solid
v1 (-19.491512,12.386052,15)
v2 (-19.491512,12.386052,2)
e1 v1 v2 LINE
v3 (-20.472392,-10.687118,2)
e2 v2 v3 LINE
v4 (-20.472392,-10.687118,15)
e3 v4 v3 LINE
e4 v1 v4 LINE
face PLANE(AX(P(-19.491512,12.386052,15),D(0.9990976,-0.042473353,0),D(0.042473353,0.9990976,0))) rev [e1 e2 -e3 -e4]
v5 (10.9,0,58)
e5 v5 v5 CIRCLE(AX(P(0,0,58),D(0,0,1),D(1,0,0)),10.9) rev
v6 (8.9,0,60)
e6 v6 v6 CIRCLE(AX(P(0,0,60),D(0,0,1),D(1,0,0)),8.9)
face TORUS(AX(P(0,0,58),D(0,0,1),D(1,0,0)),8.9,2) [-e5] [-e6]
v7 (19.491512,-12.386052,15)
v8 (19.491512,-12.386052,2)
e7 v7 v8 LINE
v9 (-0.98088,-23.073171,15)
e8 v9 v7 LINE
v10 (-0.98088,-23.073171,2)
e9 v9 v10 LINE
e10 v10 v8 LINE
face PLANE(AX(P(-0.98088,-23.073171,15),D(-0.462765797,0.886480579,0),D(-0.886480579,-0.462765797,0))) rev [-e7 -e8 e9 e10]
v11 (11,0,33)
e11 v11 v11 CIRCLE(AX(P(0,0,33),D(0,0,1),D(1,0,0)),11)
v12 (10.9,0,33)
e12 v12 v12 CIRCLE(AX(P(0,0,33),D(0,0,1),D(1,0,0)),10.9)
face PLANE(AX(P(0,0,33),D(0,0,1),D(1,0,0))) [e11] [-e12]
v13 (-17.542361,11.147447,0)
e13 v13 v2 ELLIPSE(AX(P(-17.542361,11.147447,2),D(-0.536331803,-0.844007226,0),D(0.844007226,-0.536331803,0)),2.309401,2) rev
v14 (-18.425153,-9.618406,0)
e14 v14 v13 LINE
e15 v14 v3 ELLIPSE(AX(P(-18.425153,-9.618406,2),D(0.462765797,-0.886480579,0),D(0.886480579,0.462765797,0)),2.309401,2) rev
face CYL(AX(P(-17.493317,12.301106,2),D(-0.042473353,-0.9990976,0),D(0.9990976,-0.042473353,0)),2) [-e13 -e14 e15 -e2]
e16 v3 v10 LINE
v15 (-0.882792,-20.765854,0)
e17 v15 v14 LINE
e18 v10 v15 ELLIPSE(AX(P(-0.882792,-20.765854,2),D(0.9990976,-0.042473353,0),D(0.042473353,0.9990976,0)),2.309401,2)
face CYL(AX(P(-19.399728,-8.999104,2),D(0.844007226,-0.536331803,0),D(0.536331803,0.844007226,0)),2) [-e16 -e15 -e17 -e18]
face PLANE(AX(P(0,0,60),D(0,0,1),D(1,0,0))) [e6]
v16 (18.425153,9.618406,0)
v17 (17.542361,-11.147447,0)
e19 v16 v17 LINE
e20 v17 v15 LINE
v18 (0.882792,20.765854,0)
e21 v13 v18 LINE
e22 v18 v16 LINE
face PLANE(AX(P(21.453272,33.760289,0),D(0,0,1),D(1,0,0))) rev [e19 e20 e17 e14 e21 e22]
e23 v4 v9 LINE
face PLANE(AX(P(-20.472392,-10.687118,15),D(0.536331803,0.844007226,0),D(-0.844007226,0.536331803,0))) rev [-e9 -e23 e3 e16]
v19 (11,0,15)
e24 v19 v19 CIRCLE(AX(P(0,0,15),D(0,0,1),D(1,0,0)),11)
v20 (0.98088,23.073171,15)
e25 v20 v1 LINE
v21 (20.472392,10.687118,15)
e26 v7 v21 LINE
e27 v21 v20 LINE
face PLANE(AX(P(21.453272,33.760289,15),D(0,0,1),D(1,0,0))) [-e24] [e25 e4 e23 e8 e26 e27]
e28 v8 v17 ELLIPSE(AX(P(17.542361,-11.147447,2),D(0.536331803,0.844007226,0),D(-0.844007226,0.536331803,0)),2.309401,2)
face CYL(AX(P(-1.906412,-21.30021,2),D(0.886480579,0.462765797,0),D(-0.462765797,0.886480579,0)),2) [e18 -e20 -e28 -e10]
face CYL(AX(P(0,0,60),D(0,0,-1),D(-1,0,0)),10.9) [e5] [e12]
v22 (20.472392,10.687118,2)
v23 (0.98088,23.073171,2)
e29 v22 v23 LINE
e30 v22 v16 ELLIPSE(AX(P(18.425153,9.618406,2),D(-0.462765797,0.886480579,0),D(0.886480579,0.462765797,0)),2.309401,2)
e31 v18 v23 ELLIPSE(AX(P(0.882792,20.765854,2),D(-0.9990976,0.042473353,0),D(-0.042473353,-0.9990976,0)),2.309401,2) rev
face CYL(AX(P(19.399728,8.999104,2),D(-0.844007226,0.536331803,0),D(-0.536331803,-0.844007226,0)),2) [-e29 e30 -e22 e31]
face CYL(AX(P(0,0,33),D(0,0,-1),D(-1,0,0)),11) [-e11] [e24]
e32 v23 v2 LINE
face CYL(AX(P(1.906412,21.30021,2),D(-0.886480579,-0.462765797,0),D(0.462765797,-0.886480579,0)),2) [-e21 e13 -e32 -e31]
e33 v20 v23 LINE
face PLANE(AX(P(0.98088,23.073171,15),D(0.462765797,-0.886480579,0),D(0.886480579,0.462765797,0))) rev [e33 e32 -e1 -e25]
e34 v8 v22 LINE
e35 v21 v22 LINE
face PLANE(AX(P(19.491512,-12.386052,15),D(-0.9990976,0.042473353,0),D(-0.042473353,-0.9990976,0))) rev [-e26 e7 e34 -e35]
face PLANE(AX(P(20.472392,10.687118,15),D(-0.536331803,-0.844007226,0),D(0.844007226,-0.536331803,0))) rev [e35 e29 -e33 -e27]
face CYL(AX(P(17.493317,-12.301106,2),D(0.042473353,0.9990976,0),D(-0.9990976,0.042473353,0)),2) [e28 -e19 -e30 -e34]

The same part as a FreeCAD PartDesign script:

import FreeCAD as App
import Part
import Sketcher

V = App.Vector
Q = App.Units.Quantity


def edges_at(feature, points):
    """Names of the edges that pass closest to the given points."""
    edges = feature.Shape.Edges
    near = lambda p: min(range(len(edges)), key=lambda i: edges[i].distToShape(Part.Vertex(*p))[0])
    return sorted({f"Edge{near(p) + 1}" for p in points})


def add_polygon(sketch, points):
    """Adds a closed chain of lines whose ends are joined by coincident constraints."""
    first, n = sketch.GeometryCount, len(points)
    for a, b in zip(points, points[1:] + points[:1]):
        sketch.addGeometry(Part.LineSegment(App.Vector(*a, 0), App.Vector(*b, 0)), False)
    for i in range(n):
        sketch.addConstraint(Sketcher.Constraint("Coincident", first + i, 2, first + (i + 1) % n, 1))

doc = App.newDocument("Part")
body = doc.addObject("PartDesign::Body", "Body")

# Sketch on XY plane
sketch1 = body.newObject("Sketcher::SketchObject", "Sketch")
sketch1.AttachmentSupport = (doc.getObject("XY_Plane"), [""])
sketch1.MapMode = "FlatFace"
add_polygon(sketch1, [(20.472392, 10.687118), (0.98088, 23.073171), (-19.491512, 12.386052), (-20.472392, -10.687118), (-0.98088, -23.073171), (19.491512, -12.386052)])  # lines 0-5
sketch1.addConstraint([
    Sketcher.Constraint("Symmetric", 0, 2, 3, 2, -1, 1),
    Sketcher.Constraint("Symmetric", 1, 2, 4, 2, -1, 1),
    Sketcher.Constraint("Symmetric", 2, 2, 5, 2, -1, 1),
    Sketcher.Constraint("Equal", 0, 1),
    Sketcher.Constraint("Equal", 1, 2),
    Sketcher.Constraint("Distance", 0, Q("23.094011 mm")),
    Sketcher.Constraint("DistanceX", -1, 1, 0, 2, Q("0.98088 mm")),
    Sketcher.Constraint("DistanceY", -1, 1, 0, 2, Q("23.073171 mm")),
    Sketcher.Constraint("DistanceX", 1, 2, -1, 1, Q("19.491512 mm")),
])
pad1 = body.newObject("PartDesign::Pad", "Pad")
pad1.Profile = sketch1
pad1.Length = 15

# Sketch on XY plane
sketch2 = body.newObject("Sketcher::SketchObject", "Sketch001")
sketch2.AttachmentSupport = (doc.getObject("XY_Plane"), [""])
sketch2.MapMode = "FlatFace"
sketch2.AttachmentOffset = App.Placement(V(0, 0, 15), App.Rotation())
sketch2.addGeometry(Part.Circle(V(0, 0, 0), V(0, 0, 1), 11), False)
sketch2.addConstraint([
    Sketcher.Constraint("Coincident", 0, 3, -1, 1),
    Sketcher.Constraint("Diameter", 0, Q("22 mm")),
])
pad2 = body.newObject("PartDesign::Pad", "Pad001")
pad2.Profile = sketch2
pad2.Length = 18
doc.recompute()

fillet = body.newObject("PartDesign::Fillet", "Fillet")
fillet.Base = (pad2, edges_at(pad2, [
    (9.255, -17.73, 0),
    (-10.727, -16.88, 0),
    (-19.982, 0.849, 0),
    (-9.255, 17.73, 0),
    (10.727, 16.88, 0),
    (19.982, -0.849, 0),
]))
fillet.Radius = 2

# Sketch on XY plane
sketch3 = body.newObject("Sketcher::SketchObject", "Sketch002")
sketch3.AttachmentSupport = (doc.getObject("XY_Plane"), [""])
sketch3.MapMode = "FlatFace"
sketch3.AttachmentOffset = App.Placement(V(0, 0, 33), App.Rotation())
sketch3.addGeometry(Part.Circle(V(0, 0, 0), V(0, 0, 1), 10.9), False)
sketch3.addConstraint([
    Sketcher.Constraint("Coincident", 0, 3, -1, 1),
    Sketcher.Constraint("Diameter", 0, Q("21.8 mm")),
])
pad3 = body.newObject("PartDesign::Pad", "Pad002")
pad3.Profile = sketch3
pad3.Length = 27
doc.recompute()

fillet2 = body.newObject("PartDesign::Fillet", "Fillet001")
fillet2.Base = (pad3, edges_at(pad3, [(-10.9, 0, 60)]))
fillet2.Radius = 2

doc.recompute()
